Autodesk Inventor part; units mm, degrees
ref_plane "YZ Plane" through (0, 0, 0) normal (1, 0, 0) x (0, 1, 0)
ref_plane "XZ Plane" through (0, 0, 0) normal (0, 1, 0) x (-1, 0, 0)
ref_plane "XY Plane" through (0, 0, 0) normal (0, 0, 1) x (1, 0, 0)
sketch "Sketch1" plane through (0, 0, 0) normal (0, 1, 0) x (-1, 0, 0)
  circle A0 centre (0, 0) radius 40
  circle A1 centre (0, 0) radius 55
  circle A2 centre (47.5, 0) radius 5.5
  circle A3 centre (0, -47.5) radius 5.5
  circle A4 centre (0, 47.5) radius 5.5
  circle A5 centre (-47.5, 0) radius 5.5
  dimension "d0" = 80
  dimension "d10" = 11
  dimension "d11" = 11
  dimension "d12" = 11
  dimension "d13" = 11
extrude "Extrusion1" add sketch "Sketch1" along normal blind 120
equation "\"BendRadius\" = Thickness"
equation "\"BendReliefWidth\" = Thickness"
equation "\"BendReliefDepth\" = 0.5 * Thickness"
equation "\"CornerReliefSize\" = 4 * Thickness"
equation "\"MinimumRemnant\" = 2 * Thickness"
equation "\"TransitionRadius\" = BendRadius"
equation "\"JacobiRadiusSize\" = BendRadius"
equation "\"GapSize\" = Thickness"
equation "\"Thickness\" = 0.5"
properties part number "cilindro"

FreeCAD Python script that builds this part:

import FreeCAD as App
import Part
import Sketcher

V = App.Vector

doc = App.newDocument("Part")
params = doc.addObject("Spreadsheet::Sheet", "Params")
for row, (alias, value) in enumerate([
    ("sketch1_diameter", "11 mm"),
    ("sketch1_diameter2", "80 mm"),
    ("sketch1_diameter3", "110 mm"),
    ("pad1_length", "120 mm"),
], start=1):
    params.set(f"A{row}", alias)
    params.set(f"B{row}", "=" + value)
    params.setAlias(f"B{row}", alias)

body = doc.addObject("PartDesign::Body", "Body")

sketch1 = body.newObject("Sketcher::SketchObject", "Sketch")
sketch1.AttachmentSupport = (doc.getObject("XZ_Plane"), [""])
sketch1.MapMode = "FlatFace"
sketch1.addGeometry(Part.Circle(V(0, 0, 0), V(0, 0, 1), 55), False)
sketch1.addGeometry(Part.Circle(V(0, -47.5, 0), V(0, 0, 1), 5.5), False)
sketch1.addGeometry(Part.Circle(V(47.5, 0, 0), V(0, 0, 1), 5.5), False)
sketch1.addGeometry(Part.Circle(V(0, 0, 0), V(0, 0, 1), 40), False)
sketch1.addGeometry(Part.Circle(V(-47.5, 0, 0), V(0, 0, 1), 5.5), False)
sketch1.addGeometry(Part.Circle(V(0, 47.5, 0), V(0, 0, 1), 5.5), False)
sketch1.addConstraint(Sketcher.Constraint("Coincident", 0, 3, -1, 1))
sketch1.addConstraint(Sketcher.Constraint("Coincident", 3, 3, -1, 1))
sketch1.addConstraint(Sketcher.Constraint("Equal", 1, 2))
sketch1.addConstraint(Sketcher.Constraint("Equal", 2, 4))
sketch1.addConstraint(Sketcher.Constraint("Equal", 4, 5))
sketch1.addConstraint(Sketcher.Constraint("Symmetric", 2, 3, 4, 3, -1, 1))
sketch1.addConstraint(Sketcher.Constraint("Symmetric", 1, 3, 5, 3, -1, 1))
sketch1.addConstraint(Sketcher.Constraint("PointOnObject", 1, 3, -2))
sketch1.addConstraint(Sketcher.Constraint("PointOnObject", 2, 3, -1))
sketch1.addConstraint(Sketcher.Constraint("Diameter", 1, 11.0))
sketch1.addConstraint(Sketcher.Constraint("Diameter", 3, 80.0))
sketch1.addConstraint(Sketcher.Constraint("Diameter", 0, 110.0))
sketch1.addConstraint(Sketcher.Constraint("DistanceX", 4, 3, 2, 3, 95.0))
sketch1.addConstraint(Sketcher.Constraint("DistanceY", 1, 3, 5, 3, 95.0))
sketch1.setExpression("Constraints[9]", "Params.sketch1_diameter")
sketch1.setExpression("Constraints[10]", "Params.sketch1_diameter2")
sketch1.setExpression("Constraints[11]", "Params.sketch1_diameter3")
pad1 = body.newObject("PartDesign::Pad", "Pad")
pad1.Profile = sketch1
pad1.setExpression("Length", "Params.pad1_length")
pad1.Reversed = True

doc.recompute()
